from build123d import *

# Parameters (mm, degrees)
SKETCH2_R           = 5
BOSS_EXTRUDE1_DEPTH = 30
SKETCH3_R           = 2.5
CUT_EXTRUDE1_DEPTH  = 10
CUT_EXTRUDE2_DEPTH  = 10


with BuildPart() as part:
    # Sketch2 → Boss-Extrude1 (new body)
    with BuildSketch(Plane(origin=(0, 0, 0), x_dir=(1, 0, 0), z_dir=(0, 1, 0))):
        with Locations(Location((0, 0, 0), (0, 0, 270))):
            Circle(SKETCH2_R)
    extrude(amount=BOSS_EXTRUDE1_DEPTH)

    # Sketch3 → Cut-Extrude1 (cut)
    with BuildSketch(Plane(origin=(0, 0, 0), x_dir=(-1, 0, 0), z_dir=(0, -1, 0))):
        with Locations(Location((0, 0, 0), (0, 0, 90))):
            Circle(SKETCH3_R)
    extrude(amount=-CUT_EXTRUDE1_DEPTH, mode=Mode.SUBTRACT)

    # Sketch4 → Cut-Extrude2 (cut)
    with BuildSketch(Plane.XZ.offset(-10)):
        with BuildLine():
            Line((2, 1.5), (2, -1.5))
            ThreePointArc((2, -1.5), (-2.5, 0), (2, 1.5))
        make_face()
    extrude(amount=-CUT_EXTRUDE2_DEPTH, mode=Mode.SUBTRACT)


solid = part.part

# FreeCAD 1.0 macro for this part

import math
import FreeCAD as App
import Part
import Sketcher

V = App.Vector

doc = App.newDocument("Part")
body = doc.addObject("PartDesign::Body", "Body")

# Sketch on XZ plane
sketch1 = body.newObject("Sketcher::SketchObject", "Sketch")
sketch1.AttachmentSupport = (doc.getObject("XZ_Plane"), [""])
sketch1.MapMode = "FlatFace"
sketch1.addGeometry(Part.Circle(V(0, 0, 0), V(0, 0, 1), 5), False)
sketch1.addConstraint([
    Sketcher.Constraint("Coincident", 0, 3, -1, 1),
    Sketcher.Constraint("Diameter", 0, 10.0),
])
pad1 = body.newObject("PartDesign::Pad", "Pad")
pad1.Profile = sketch1
pad1.Length = 30
pad1.Reversed = True

# Sketch on XZ plane
sketch2 = body.newObject("Sketcher::SketchObject", "Sketch001")
sketch2.AttachmentSupport = (doc.getObject("XZ_Plane"), [""])
sketch2.MapMode = "FlatFace"
sketch2.addGeometry(Part.Circle(V(0, 0, 0), V(0, 0, 1), 2.5), False)
sketch2.addConstraint([
    Sketcher.Constraint("Coincident", 0, 3, -1, 1),
    Sketcher.Constraint("Diameter", 0, 5.0),
])
pocket1 = body.newObject("PartDesign::Pocket", "Pocket")
pocket1.Profile = sketch2
pocket1.Length = 10

# Sketch on XZ plane
sketch3 = body.newObject("Sketcher::SketchObject", "Sketch002")
sketch3.AttachmentSupport = (doc.getObject("XZ_Plane"), [""])
sketch3.MapMode = "FlatFace"
sketch3.AttachmentOffset = App.Placement(V(0, 0, -10), App.Rotation())
sketch3.addGeometry([
    Part.LineSegment(V(2, -1.5, 0), V(2, 1.5, 0)),
    Part.ArcOfCircle(Part.Circle(V(0, 0, 0), V(0, 0, 1), 2.5), math.radians(37), math.radians(323)),
], False)
sketch3.addConstraint([
    Sketcher.Constraint("Coincident", 0, 1, 1, 2),
    Sketcher.Constraint("Coincident", 1, 1, 0, 2),
    Sketcher.Constraint("Vertical", 0),
    Sketcher.Constraint("Coincident", 1, 3, -1, 1),
    Sketcher.Constraint("Radius", 1, 2.5),
    Sketcher.Constraint("DistanceY", 0, 1, 0, 2, 3.0),
])
pocket2 = body.newObject("PartDesign::Pocket", "Pocket001")
pocket2.Profile = sketch3
pocket2.Length = 10

doc.recompute()
